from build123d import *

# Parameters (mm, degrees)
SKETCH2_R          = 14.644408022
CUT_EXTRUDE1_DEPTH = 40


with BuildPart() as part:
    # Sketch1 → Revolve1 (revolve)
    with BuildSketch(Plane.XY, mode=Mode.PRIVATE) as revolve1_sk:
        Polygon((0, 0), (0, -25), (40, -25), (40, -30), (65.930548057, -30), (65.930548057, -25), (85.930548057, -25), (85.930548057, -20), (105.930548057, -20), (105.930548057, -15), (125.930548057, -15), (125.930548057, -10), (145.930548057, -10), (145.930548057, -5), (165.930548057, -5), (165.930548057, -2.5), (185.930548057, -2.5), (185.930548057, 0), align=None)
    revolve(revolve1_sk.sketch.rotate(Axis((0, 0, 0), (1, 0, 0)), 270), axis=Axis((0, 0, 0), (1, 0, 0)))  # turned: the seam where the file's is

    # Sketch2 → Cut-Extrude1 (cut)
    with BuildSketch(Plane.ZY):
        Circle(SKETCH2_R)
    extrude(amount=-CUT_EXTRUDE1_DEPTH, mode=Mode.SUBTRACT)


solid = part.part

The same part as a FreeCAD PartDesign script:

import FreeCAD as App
import Part
import Sketcher
from FreeCAD import Vector
Q = App.Units.Quantity


def add_polygon(sketch, points):
    """Adds a closed chain of lines whose ends are joined by coincident constraints."""
    first, n = sketch.GeometryCount, len(points)
    for a, b in zip(points, points[1:] + points[:1]):
        sketch.addGeometry(Part.LineSegment(App.Vector(*a, 0), App.Vector(*b, 0)), False)
    for i in range(n):
        sketch.addConstraint(Sketcher.Constraint("Coincident", first + i, 2, first + (i + 1) % n, 1))

doc = App.newDocument("Part")
params = doc.addObject("Spreadsheet::Sheet", "Params")
for row, (alias, value) in enumerate([
    ("sketch1_width", "40 mm"),
    ("sketch1_width2", "20 mm"),
    ("sketch1_height", "25 mm"),
    ("sketch1_height2", "5 mm"),
    ("revolution_angle", "360 deg"),
    ("pocket1_length", "40 mm"),
], start=1):
    params.set(f"A{row}", alias)
    params.set(f"B{row}", "=" + value)
    params.setAlias(f"B{row}", alias)

body = doc.addObject("PartDesign::Body", "Body")

# Sketch on XY plane
sketch1 = body.newObject("Sketcher::SketchObject", "Sketch")
sketch1.AttachmentSupport = (doc.getObject("XY_Plane"), [""])
sketch1.MapMode = "FlatFace"
add_polygon(sketch1, [(0, 0), (0, -25), (40, -25), (40, -30), (65.930548, -30), (65.930548, -25), (85.930548, -25), (85.930548, -20), (105.930548, -20), (105.930548, -15), (125.930548, -15), (125.930548, -10), (145.930548, -10), (145.930548, -5), (165.930548, -5), (165.930548, -2.5), (185.930548, -2.5), (185.930548, 0)])  # lines 0-17
sketch1.addConstraint([
    Sketcher.Constraint("Vertical", 0),
    Sketcher.Constraint("Horizontal", 1),
    Sketcher.Constraint("Vertical", 2),
    Sketcher.Constraint("Horizontal", 3),
    Sketcher.Constraint("Vertical", 4),
    Sketcher.Constraint("Horizontal", 5),
    Sketcher.Constraint("Vertical", 6),
    Sketcher.Constraint("Horizontal", 7),
    Sketcher.Constraint("Vertical", 8),
    Sketcher.Constraint("Horizontal", 9),
    Sketcher.Constraint("Vertical", 10),
    Sketcher.Constraint("Horizontal", 11),
    Sketcher.Constraint("Vertical", 12),
    Sketcher.Constraint("Horizontal", 13),
    Sketcher.Constraint("Vertical", 14),
    Sketcher.Constraint("Horizontal", 15),
    Sketcher.Constraint("Vertical", 16),
    Sketcher.Constraint("Horizontal", 17),
    Sketcher.Constraint("Coincident", 17, 2, -1, 1),
    Sketcher.Constraint("Horizontal", 1, 2, 4, 2),
    Sketcher.Constraint("Equal", 5, 7),
    Sketcher.Constraint("Equal", 7, 9),
    Sketcher.Constraint("Equal", 9, 11),
    Sketcher.Constraint("Equal", 11, 13),
    Sketcher.Constraint("Equal", 13, 15),
    Sketcher.Constraint("Equal", 4, 6),
    Sketcher.Constraint("Equal", 6, 8),
    Sketcher.Constraint("Equal", 8, 10),
    Sketcher.Constraint("Equal", 10, 12),
    Sketcher.Constraint("Equal", 14, 16),
    Sketcher.Constraint("DistanceX", 1, 1, 1, 2, Q("40 mm")),
    Sketcher.Constraint("DistanceX", 5, 1, 5, 2, Q("20 mm")),
    Sketcher.Constraint("DistanceY", 0, 2, 0, 1, Q("25 mm")),
    Sketcher.Constraint("DistanceY", 2, 2, 2, 1, Q("5 mm")),
    Sketcher.Constraint("DistanceX", 3, 1, 3, 2, Q("25.930548 mm")),
])
sketch1.setExpression("Constraints[48]", "Params.sketch1_width")
sketch1.setExpression("Constraints[49]", "Params.sketch1_width2")
sketch1.setExpression("Constraints[50]", "Params.sketch1_height")
sketch1.setExpression("Constraints[51]", "Params.sketch1_height2")
revolution = body.newObject("PartDesign::Revolution", "Revolution")
revolution.Profile = sketch1
revolution.ReferenceAxis = (sketch1, ["H_Axis"])
revolution.setExpression("Angle", "Params.revolution_angle")

# Sketch on YZ plane
sketch2 = body.newObject("Sketcher::SketchObject", "Sketch001")
sketch2.AttachmentSupport = (doc.getObject("YZ_Plane"), [""])
sketch2.MapMode = "FlatFace"
sketch2.addGeometry(Part.Circle(Vector(0, 0, 0), Vector(0, 0, 1), 14.644408), False)
sketch2.addConstraint([
    Sketcher.Constraint("Coincident", 0, 3, -1, 1),
    Sketcher.Constraint("Diameter", 0, Q("29.288816 mm")),
])
pocket1 = body.newObject("PartDesign::Pocket", "Pocket")
pocket1.Profile = sketch2
pocket1.setExpression("Length", "Params.pocket1_length")
pocket1.Reversed = True

doc.recompute()
